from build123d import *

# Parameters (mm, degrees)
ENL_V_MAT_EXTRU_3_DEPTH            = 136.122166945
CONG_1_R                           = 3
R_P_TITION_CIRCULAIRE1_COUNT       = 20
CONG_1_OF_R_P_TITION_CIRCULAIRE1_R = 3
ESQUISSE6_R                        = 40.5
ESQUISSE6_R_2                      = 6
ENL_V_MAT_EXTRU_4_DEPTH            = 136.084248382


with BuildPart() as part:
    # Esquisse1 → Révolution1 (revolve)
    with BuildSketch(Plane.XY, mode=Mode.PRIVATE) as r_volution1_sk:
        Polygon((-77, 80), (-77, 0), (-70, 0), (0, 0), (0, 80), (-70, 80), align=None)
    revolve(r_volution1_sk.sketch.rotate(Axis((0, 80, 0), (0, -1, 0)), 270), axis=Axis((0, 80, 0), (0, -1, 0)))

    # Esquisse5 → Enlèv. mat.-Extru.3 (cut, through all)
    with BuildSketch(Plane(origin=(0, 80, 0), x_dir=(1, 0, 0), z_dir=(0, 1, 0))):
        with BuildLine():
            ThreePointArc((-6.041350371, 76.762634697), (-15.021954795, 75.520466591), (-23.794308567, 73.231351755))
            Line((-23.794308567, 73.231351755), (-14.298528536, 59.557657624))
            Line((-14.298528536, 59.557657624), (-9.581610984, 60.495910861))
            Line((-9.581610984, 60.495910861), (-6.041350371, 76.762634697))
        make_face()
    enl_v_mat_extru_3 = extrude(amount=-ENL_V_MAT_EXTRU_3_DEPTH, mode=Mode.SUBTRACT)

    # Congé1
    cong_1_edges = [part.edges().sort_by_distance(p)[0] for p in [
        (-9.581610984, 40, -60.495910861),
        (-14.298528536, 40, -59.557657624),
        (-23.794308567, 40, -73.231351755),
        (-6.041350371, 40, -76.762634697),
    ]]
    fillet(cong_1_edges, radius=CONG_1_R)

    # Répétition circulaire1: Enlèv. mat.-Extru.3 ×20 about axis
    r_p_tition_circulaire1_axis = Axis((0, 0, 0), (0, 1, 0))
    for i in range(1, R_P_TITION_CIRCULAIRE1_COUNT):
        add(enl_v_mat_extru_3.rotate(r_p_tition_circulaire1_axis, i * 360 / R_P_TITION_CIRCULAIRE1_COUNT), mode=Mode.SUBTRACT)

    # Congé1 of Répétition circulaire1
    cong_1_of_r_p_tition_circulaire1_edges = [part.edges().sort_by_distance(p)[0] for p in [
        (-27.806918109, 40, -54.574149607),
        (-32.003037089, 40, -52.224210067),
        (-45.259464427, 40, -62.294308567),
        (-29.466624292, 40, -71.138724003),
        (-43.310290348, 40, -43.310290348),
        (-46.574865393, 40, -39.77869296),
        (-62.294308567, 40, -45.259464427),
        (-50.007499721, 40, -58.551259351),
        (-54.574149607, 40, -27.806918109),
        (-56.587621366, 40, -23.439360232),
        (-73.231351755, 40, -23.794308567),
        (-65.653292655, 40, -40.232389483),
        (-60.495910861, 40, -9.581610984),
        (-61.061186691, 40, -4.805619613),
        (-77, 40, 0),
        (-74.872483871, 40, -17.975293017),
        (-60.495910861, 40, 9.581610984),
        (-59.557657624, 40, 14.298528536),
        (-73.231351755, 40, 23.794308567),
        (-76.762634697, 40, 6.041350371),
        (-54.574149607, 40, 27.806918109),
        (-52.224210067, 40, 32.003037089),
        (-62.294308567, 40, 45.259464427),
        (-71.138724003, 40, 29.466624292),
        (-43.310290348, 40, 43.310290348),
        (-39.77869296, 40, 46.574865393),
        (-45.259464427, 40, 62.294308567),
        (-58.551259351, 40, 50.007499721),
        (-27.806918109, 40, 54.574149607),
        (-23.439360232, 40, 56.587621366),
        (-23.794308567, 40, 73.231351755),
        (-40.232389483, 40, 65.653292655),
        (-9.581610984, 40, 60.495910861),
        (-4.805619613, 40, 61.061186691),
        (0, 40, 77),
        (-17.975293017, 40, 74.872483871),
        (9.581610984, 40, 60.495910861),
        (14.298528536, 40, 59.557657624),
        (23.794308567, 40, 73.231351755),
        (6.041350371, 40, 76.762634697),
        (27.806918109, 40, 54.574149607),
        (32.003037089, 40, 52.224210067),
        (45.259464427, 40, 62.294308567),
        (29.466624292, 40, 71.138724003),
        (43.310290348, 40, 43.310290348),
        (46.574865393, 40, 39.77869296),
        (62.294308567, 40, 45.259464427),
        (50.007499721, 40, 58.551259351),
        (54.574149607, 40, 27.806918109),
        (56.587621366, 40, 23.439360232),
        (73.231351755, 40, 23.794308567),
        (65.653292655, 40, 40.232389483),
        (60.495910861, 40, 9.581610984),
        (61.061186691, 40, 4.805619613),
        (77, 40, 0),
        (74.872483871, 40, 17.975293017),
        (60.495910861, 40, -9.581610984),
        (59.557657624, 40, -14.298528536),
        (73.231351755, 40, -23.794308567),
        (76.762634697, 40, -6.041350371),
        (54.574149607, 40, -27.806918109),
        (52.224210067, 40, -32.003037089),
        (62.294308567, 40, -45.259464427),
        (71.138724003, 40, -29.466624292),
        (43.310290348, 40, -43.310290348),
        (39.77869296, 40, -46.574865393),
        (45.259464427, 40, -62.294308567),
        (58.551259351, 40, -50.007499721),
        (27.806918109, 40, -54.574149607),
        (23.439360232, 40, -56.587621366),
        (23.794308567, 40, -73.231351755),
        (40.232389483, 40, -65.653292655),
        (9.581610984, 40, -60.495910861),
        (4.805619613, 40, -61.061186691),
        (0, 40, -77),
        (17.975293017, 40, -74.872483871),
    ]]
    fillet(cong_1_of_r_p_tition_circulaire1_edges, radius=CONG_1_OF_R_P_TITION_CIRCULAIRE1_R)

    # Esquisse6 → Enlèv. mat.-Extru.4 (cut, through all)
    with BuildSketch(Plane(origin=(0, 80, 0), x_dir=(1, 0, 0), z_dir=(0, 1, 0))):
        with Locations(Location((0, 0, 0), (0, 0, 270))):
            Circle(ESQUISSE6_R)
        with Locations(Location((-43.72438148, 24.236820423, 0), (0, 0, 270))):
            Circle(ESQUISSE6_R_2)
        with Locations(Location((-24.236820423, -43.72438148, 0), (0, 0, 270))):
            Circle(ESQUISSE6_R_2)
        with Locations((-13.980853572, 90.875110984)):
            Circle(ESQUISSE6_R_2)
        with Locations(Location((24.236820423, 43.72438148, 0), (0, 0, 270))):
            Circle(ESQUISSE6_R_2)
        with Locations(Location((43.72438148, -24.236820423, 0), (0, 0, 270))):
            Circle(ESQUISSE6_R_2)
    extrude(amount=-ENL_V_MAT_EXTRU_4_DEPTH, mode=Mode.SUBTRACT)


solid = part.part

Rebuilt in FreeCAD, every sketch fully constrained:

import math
import FreeCAD as App
import Part
import Sketcher
from FreeCAD import Vector
Q = App.Units.Quantity


def edges_at(feature, points):
    """Names of the edges that pass closest to the given points."""
    edges = feature.Shape.Edges
    near = lambda p: min(range(len(edges)), key=lambda i: edges[i].distToShape(Part.Vertex(*p))[0])
    return sorted({f"Edge{near(p) + 1}" for p in points})


def add_polygon(sketch, points):
    """Adds a closed chain of lines whose ends are joined by coincident constraints."""
    first, n = sketch.GeometryCount, len(points)
    for a, b in zip(points, points[1:] + points[:1]):
        sketch.addGeometry(Part.LineSegment(App.Vector(*a, 0), App.Vector(*b, 0)), False)
    for i in range(n):
        sketch.addConstraint(Sketcher.Constraint("Coincident", first + i, 2, first + (i + 1) % n, 1))

doc = App.newDocument("Part")
params = doc.addObject("Spreadsheet::Sheet", "Params")
for row, (alias, value) in enumerate([
    ("sketch1_width", "77 mm"),
    ("sketch1_height", "80 mm"),
    ("revolution_angle", "360 deg"),
    ("sketch2_radius", "77 mm"),
    ("fillet_radius", "3 mm"),
    ("fillet2_radius", "3 mm"),
    ("sketch3_diameter", "81 mm"),
    ("sketch3_diameter2", "12 mm"),
], start=1):
    params.set(f"A{row}", alias)
    params.set(f"B{row}", "=" + value)
    params.setAlias(f"B{row}", alias)

body = doc.addObject("PartDesign::Body", "Body")

sketch1 = body.newObject("Sketcher::SketchObject", "Sketch")
sketch1.AttachmentSupport = (doc.getObject("XY_Plane"), [""])
sketch1.MapMode = "FlatFace"
add_polygon(sketch1, [(-77, 80), (-77, 0), (0, 0), (0, 80)])
sketch1.addConstraint([
    Sketcher.Constraint("Vertical", 0),
    Sketcher.Constraint("Horizontal", 1),
    Sketcher.Constraint("Vertical", 2),
    Sketcher.Constraint("Horizontal", 3),
    Sketcher.Constraint("Coincident", 1, 2, -1, 1),
    Sketcher.Constraint("DistanceX", 1, 1, 1, 2, Q("77 mm")),
    Sketcher.Constraint("DistanceY", 0, 2, 0, 1, Q("80 mm")),
])
sketch1.setExpression("Constraints[9]", "Params.sketch1_width")
sketch1.setExpression("Constraints[10]", "Params.sketch1_height")
revolution = body.newObject("PartDesign::Revolution", "Revolution")
revolution.Profile = sketch1
revolution.ReferenceAxis = (sketch1, ["V_Axis"])
revolution.setExpression("Angle", "Params.revolution_angle")

sketch2 = body.newObject("Sketcher::SketchObject", "Sketch001")
sketch2.AttachmentSupport = (doc.getObject("XZ_Plane"), [""])
sketch2.MapMode = "FlatFace"
sketch2.AttachmentOffset = App.Placement(Vector(0, 0, -80), App.Rotation())
sketch2.addGeometry([
    Part.ArcOfCircle(Part.Circle(Vector(0, 0, 0), Vector(0, 0, 1), 77), math.radians(-108), math.radians(-94.5)),
    Part.LineSegment(Vector(-23.8, -73.2, 0), Vector(-14.3, -59.6, 0)),
    Part.LineSegment(Vector(-14.3, -59.6, 0), Vector(-9.6, -60.5, 0)),
    Part.LineSegment(Vector(-9.6, -60.5, 0), Vector(-6, -76.8, 0)),
], False)
sketch2.addConstraint([
    Sketcher.Constraint("Coincident", 0, 1, 1, 1),
    Sketcher.Constraint("Coincident", 1, 2, 2, 1),
    Sketcher.Constraint("Coincident", 2, 2, 3, 1),
    Sketcher.Constraint("Coincident", 3, 2, 0, 2),
    Sketcher.Constraint("Coincident", 0, 3, -1, 1),
    Sketcher.Constraint("Equal", 1, 3),
    Sketcher.Constraint("Radius", 0, Q("77 mm")),
    Sketcher.Constraint("Angle", 2, Q("-11.25 deg")),
    Sketcher.Constraint("DistanceX", 0, 1, -1, 1, Q("23.794309 mm")),
    Sketcher.Constraint("DistanceX", 1, 2, -1, 1, Q("14.298529 mm")),
    Sketcher.Constraint("DistanceX", 2, 2, -1, 1, Q("9.581611 mm")),
    Sketcher.Constraint("DistanceY", 2, 2, -1, 1, Q("60.495911 mm")),
])
sketch2.setExpression("Constraints[6]", "Params.sketch2_radius")
pocket1 = body.newObject("PartDesign::Pocket", "Pocket")
pocket1.Profile = sketch2
pocket1.Type = "ThroughAll"
pocket1.Reversed = True
doc.recompute()

fillet = body.newObject("PartDesign::Fillet", "Fillet")
fillet.Base = (pocket1, edges_at(pocket1, [
    (-9.582, 40, -60.496),
    (-14.299, 40, -59.558),
    (-23.794, 40, -73.231),
    (-6.041, 40, -76.763),
]))
fillet.setExpression("Radius", "Params.fillet_radius")
doc.recompute()

polarpattern = body.newObject("PartDesign::PolarPattern", "PolarPattern")
polarpattern.Originals = [pocket1]
polarpattern.Axis = (doc.getObject("Y_Axis"), [""])
polarpattern.Angle = 360
polarpattern.Occurrences = 20
body.Tip = polarpattern
doc.recompute()

fillet2 = body.newObject("PartDesign::Fillet", "Fillet001")
fillet2.Base = (polarpattern, edges_at(polarpattern, [
    (-27.807, 40, -54.574),
    (-32.003, 40, -52.224),
    (-45.259, 40, -62.294),
    (-29.467, 40, -71.139),
    (-43.31, 40, -43.31),
    (-46.575, 40, -39.779),
    (-62.294, 40, -45.259),
    (-50.007, 40, -58.551),
    (-54.574, 40, -27.807),
    (-56.588, 40, -23.439),
    (-73.231, 40, -23.794),
    (-65.653, 40, -40.232),
    (-60.496, 40, -9.582),
    (-61.061, 40, -4.806),
    (-77, 40, 0),
    (-74.872, 40, -17.975),
    (-60.496, 40, 9.582),
    (-59.558, 40, 14.299),
    (-73.231, 40, 23.794),
    (-76.763, 40, 6.041),
    (-54.574, 40, 27.807),
    (-52.224, 40, 32.003),
    (-62.294, 40, 45.259),
    (-71.139, 40, 29.467),
    (-43.31, 40, 43.31),
    (-39.779, 40, 46.575),
    (-45.259, 40, 62.294),
    (-58.551, 40, 50.007),
    (-27.807, 40, 54.574),
    (-23.439, 40, 56.588),
    (-23.794, 40, 73.231),
    (-40.232, 40, 65.653),
    (-9.582, 40, 60.496),
    (-4.806, 40, 61.061),
    (0, 40, 77),
    (-17.975, 40, 74.872),
    (9.582, 40, 60.496),
    (14.299, 40, 59.558),
    (23.794, 40, 73.231),
    (6.041, 40, 76.763),
    (27.807, 40, 54.574),
    (32.003, 40, 52.224),
    (45.259, 40, 62.294),
    (29.467, 40, 71.139),
    (43.31, 40, 43.31),
    (46.575, 40, 39.779),
    (62.294, 40, 45.259),
    (50.007, 40, 58.551),
    (54.574, 40, 27.807),
    (56.588, 40, 23.439),
    (73.231, 40, 23.794),
    (65.653, 40, 40.232),
    (60.496, 40, 9.582),
    (61.061, 40, 4.806),
    (77, 40, 0),
    (74.872, 40, 17.975),
    (60.496, 40, -9.582),
    (59.558, 40, -14.299),
    (73.231, 40, -23.794),
    (76.763, 40, -6.041),
    (54.574, 40, -27.807),
    (52.224, 40, -32.003),
    (62.294, 40, -45.259),
    (71.139, 40, -29.467),
    (43.31, 40, -43.31),
    (39.779, 40, -46.575),
    (45.259, 40, -62.294),
    (58.551, 40, -50.007),
    (27.807, 40, -54.574),
    (23.439, 40, -56.588),
    (23.794, 40, -73.231),
    (40.232, 40, -65.653),
    (9.582, 40, -60.496),
    (4.806, 40, -61.061),
    (0, 40, -77),
    (17.975, 40, -74.872),
]))
fillet2.setExpression("Radius", "Params.fillet2_radius")

sketch3 = body.newObject("Sketcher::SketchObject", "Sketch002")
sketch3.AttachmentSupport = (doc.getObject("XZ_Plane"), [""])
sketch3.MapMode = "FlatFace"
sketch3.AttachmentOffset = App.Placement(Vector(0, 0, -80), App.Rotation())
sketch3.addGeometry([
    Part.Circle(Vector(0, 0, 0), Vector(0, 0, 1), 40),
    Part.Circle(Vector(-44, -24, 0), Vector(0, 0, 1), 6),
    Part.Circle(Vector(-24, 44, 0), Vector(0, 0, 1), 6),
    Part.Circle(Vector(-14, -91, 0), Vector(0, 0, 1), 6),
    Part.Circle(Vector(24, -44, 0), Vector(0, 0, 1), 6),
    Part.Circle(Vector(44, 24, 0), Vector(0, 0, 1), 6),
], False)
sketch3.addConstraint([
    Sketcher.Constraint("Coincident", 0, 3, -1, 1),
    Sketcher.Constraint("Equal", 1, 2),
    Sketcher.Constraint("Equal", 2, 3),
    Sketcher.Constraint("Equal", 3, 4),
    Sketcher.Constraint("Equal", 4, 5),
    Sketcher.Constraint("Symmetric", 2, 3, 4, 3, -1, 1),
    Sketcher.Constraint("Symmetric", 1, 3, 5, 3, -1, 1),
    Sketcher.Constraint("Diameter", 0, Q("81 mm")),
    Sketcher.Constraint("Diameter", 1, Q("12 mm")),
    Sketcher.Constraint("DistanceY", 1, 3, 2, 3, Q("67.961202 mm")),
    Sketcher.Constraint("DistanceX", 1, 3, 4, 3, Q("67.961202 mm")),
    Sketcher.Constraint("DistanceX", 1, 3, -1, 1, Q("43.724381 mm")),
    Sketcher.Constraint("DistanceY", 1, 3, -1, 1, Q("24.23682 mm")),
    Sketcher.Constraint("DistanceY", 3, 3, -1, 1, Q("90.875111 mm")),
    Sketcher.Constraint("DistanceX", 3, 3, -1, 1, Q("13.980854 mm")),
])
sketch3.setExpression("Constraints[7]", "Params.sketch3_diameter")
sketch3.setExpression("Constraints[8]", "Params.sketch3_diameter2")
pocket2 = body.newObject("PartDesign::Pocket", "Pocket001")
pocket2.Profile = sketch3
pocket2.Type = "ThroughAll"
pocket2.Reversed = True

doc.recompute()
